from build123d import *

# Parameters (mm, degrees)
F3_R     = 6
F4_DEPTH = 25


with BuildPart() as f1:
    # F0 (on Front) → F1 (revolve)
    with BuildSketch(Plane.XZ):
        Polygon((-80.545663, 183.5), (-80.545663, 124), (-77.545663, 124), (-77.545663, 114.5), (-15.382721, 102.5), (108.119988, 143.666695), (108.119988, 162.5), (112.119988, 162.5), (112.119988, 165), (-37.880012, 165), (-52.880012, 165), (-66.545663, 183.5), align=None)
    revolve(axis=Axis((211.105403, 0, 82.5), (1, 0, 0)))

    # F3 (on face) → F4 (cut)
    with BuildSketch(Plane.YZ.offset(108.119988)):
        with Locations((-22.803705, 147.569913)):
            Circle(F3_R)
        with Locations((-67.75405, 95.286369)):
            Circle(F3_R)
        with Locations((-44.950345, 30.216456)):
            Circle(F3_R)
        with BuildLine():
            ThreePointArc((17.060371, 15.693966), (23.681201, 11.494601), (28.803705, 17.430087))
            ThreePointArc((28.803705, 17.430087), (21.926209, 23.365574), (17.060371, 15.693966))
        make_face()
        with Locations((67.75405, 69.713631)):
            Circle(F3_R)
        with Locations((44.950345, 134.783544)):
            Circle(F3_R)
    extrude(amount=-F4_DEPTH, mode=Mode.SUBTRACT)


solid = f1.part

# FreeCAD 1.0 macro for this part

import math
import FreeCAD as App
import Part
import Sketcher

V = App.Vector
Q = App.Units.Quantity

doc = App.newDocument("Part")
body = doc.addObject("PartDesign::Body", "Body")

sketch1 = doc.addObject("Sketcher::SketchObject", "Sketch")
body.addObject(sketch1)
sketch1.AttachmentSupport = (doc.XZ_Plane, [""])
sketch1.MapMode = "FlatFace"
sketch1.addGeometry([
    Part.LineSegment(V(-80.545663, 183.5, 0), V(-80.545663, 124, 0)),
    Part.LineSegment(V(-80.545663, 124, 0), V(-77.545663, 124, 0)),
    Part.LineSegment(V(-77.545663, 124, 0), V(-77.545663, 114.5, 0)),
    Part.LineSegment(V(-77.545663, 114.5, 0), V(-15.382721, 102.5, 0)),
    Part.LineSegment(V(-15.382721, 102.5, 0), V(108.119988, 143.666695, 0)),
    Part.LineSegment(V(108.119988, 143.666695, 0), V(108.119988, 162.5, 0)),
    Part.LineSegment(V(108.119988, 162.5, 0), V(112.119988, 162.5, 0)),
    Part.LineSegment(V(112.119988, 162.5, 0), V(112.119988, 165, 0)),
    Part.LineSegment(V(112.119988, 165, 0), V(-52.880012, 165, 0)),
    Part.LineSegment(V(-52.880012, 165, 0), V(-66.545663, 183.5, 0)),
    Part.LineSegment(V(-66.545663, 183.5, 0), V(-80.545663, 183.5, 0)),
], False)
sketch1.addGeometry(Part.LineSegment(V(-80.545663, 82.5, 0), V(112.119988, 82.5, 0)), True)
sketch1.addConstraint([
    Sketcher.Constraint("Coincident", 0, 2, 1, 1),
    Sketcher.Constraint("Coincident", 1, 2, 2, 1),
    Sketcher.Constraint("Coincident", 2, 2, 3, 1),
    Sketcher.Constraint("Coincident", 3, 2, 4, 1),
    Sketcher.Constraint("Coincident", 4, 2, 5, 1),
    Sketcher.Constraint("Coincident", 5, 2, 6, 1),
    Sketcher.Constraint("Coincident", 6, 2, 7, 1),
    Sketcher.Constraint("Coincident", 7, 2, 8, 1),
    Sketcher.Constraint("Coincident", 8, 2, 9, 1),
    Sketcher.Constraint("Coincident", 9, 2, 10, 1),
    Sketcher.Constraint("Coincident", 10, 2, 0, 1),
    Sketcher.Constraint("Vertical", 0),
    Sketcher.Constraint("Horizontal", 1),
    Sketcher.Constraint("Vertical", 2),
    Sketcher.Constraint("Vertical", 5),
    Sketcher.Constraint("Horizontal", 6),
    Sketcher.Constraint("Vertical", 7),
    Sketcher.Constraint("Horizontal", 8),
    Sketcher.Constraint("Horizontal", 10),
    Sketcher.Constraint("Horizontal", 11),
    Sketcher.Constraint("Vertical", 10, 2, 11, 1),
    Sketcher.Constraint("Vertical", 7, 2, 11, 2),
    Sketcher.Constraint("DistanceX", 1, 1, 1, 2, Q("3 mm")),
    Sketcher.Constraint("DistanceX", 6, 1, 6, 2, Q("4 mm")),
    Sketcher.Constraint("DistanceX", 8, 2, 8, 1, Q("165 mm")),
    Sketcher.Constraint("DistanceX", 10, 2, 10, 1, Q("14 mm")),
    Sketcher.Constraint("Distance", 9, Q("23 mm")),
    Sketcher.Constraint("DistanceY", 0, 2, 0, 1, Q("59.5 mm")),
    Sketcher.Constraint("DistanceY", 2, 2, 2, 1, Q("9.5 mm")),
    Sketcher.Constraint("DistanceY", 7, 1, 7, 2, Q("2.5 mm")),
    Sketcher.Constraint("DistanceY", -1, 1, 0, 2, Q("124 mm")),
    Sketcher.Constraint("DistanceY", -1, 1, 7, 2, Q("165 mm")),
    Sketcher.Constraint("DistanceY", 3, 2, 2, 2, Q("12 mm")),
    Sketcher.Constraint("DistanceY", 11, 1, 2, 2, Q("32 mm")),
    Sketcher.Constraint("Distance", 4, Q("130.183009 mm")),
    Sketcher.Constraint("DistanceY", 5, 1, 5, 2, Q("18.833305 mm")),
    Sketcher.Constraint("DistanceX", 3, 2, -1, 1, Q("15.382721 mm")),
])
revolution = doc.addObject("PartDesign::Revolution", "Revolution")
body.addObject(revolution)
revolution.Profile = sketch1
revolution.ReferenceAxis = (sketch1, ["Axis0"])
revolution.Angle = 360

sketch2 = doc.addObject("Sketcher::SketchObject", "Sketch001")
body.addObject(sketch2)
sketch2.AttachmentSupport = (doc.YZ_Plane, [""])
sketch2.MapMode = "FlatFace"
sketch2.AttachmentOffset = App.Placement(V(0, 0, 108.119988), App.Rotation())
sketch2.addGeometry([
    Part.Circle(V(-22.803705, 147.569913, 0), V(0, 0, 1), 6),
    Part.Circle(V(-67.75405, 95.286369, 0), V(0, 0, 1), 6),
    Part.Circle(V(-44.950345, 30.216456, 0), V(0, 0, 1), 6),
    Part.ArcOfCircle(Part.Circle(V(22.803705, 17.430088, 0), V(0, 0, 1), 6), math.radians(-163.180738), math.radians(-0.000007)),
    Part.ArcOfCircle(Part.Circle(V(22.803705, 17.430087, 0), V(0, 0, 1), 6), math.radians(-0.000003), math.radians(196.819258)),
    Part.Circle(V(67.75405, 69.713631, 0), V(0, 0, 1), 6),
    Part.Circle(V(44.950345, 134.783544, 0), V(0, 0, 1), 6),
], False)
sketch2.addConstraint([
    Sketcher.Constraint("Tangent", 3, 1, 4, 2),
    Sketcher.Constraint("Coincident", 4, 1, 3, 2),
    Sketcher.Constraint("Equal", 0, 1),
    Sketcher.Constraint("Equal", 1, 2),
    Sketcher.Constraint("Equal", 2, 3),
    Sketcher.Constraint("Equal", 4, 5),
    Sketcher.Constraint("Equal", 5, 6),
    Sketcher.Constraint("Horizontal", 3, 3, 4, 1),
    Sketcher.Constraint("Diameter", 0, Q("12 mm")),
    Sketcher.Constraint("DistanceX", 1, 3, 5, 3, Q("135.5081 mm")),
    Sketcher.Constraint("DistanceX", 1, 3, -1, 1, Q("67.75405 mm")),
    Sketcher.Constraint("DistanceY", -1, 1, 1, 3, Q("95.286369 mm")),
    Sketcher.Constraint("DistanceY", -1, 1, 5, 3, Q("69.713631 mm")),
    Sketcher.Constraint("DistanceX", -1, 1, 3, 1, Q("17.060371 mm")),
    Sketcher.Constraint("DistanceX", 2, 3, 0, 3, Q("22.14664 mm")),
    Sketcher.Constraint("DistanceX", 2, 3, 3, 3, Q("67.75405 mm")),
    Sketcher.Constraint("DistanceY", 3, 3, 2, 3, Q("12.786368 mm")),
    Sketcher.Constraint("DistanceY", 3, 3, 1, 3, Q("77.856281 mm")),
    Sketcher.Constraint("DistanceX", 0, 3, 6, 3, Q("67.75405 mm")),
    Sketcher.Constraint("DistanceY", 6, 3, 0, 3, Q("12.786369 mm")),
    Sketcher.Constraint("DistanceY", 3, 1, 4, 3, Q("1.736121 mm")),
    Sketcher.Constraint("DistanceY", -1, 1, 0, 3, Q("147.569913 mm")),
])
pocket1 = doc.addObject("PartDesign::Pocket", "Pocket")
body.addObject(pocket1)
pocket1.Profile = sketch2
pocket1.Length = 25

doc.recompute()
